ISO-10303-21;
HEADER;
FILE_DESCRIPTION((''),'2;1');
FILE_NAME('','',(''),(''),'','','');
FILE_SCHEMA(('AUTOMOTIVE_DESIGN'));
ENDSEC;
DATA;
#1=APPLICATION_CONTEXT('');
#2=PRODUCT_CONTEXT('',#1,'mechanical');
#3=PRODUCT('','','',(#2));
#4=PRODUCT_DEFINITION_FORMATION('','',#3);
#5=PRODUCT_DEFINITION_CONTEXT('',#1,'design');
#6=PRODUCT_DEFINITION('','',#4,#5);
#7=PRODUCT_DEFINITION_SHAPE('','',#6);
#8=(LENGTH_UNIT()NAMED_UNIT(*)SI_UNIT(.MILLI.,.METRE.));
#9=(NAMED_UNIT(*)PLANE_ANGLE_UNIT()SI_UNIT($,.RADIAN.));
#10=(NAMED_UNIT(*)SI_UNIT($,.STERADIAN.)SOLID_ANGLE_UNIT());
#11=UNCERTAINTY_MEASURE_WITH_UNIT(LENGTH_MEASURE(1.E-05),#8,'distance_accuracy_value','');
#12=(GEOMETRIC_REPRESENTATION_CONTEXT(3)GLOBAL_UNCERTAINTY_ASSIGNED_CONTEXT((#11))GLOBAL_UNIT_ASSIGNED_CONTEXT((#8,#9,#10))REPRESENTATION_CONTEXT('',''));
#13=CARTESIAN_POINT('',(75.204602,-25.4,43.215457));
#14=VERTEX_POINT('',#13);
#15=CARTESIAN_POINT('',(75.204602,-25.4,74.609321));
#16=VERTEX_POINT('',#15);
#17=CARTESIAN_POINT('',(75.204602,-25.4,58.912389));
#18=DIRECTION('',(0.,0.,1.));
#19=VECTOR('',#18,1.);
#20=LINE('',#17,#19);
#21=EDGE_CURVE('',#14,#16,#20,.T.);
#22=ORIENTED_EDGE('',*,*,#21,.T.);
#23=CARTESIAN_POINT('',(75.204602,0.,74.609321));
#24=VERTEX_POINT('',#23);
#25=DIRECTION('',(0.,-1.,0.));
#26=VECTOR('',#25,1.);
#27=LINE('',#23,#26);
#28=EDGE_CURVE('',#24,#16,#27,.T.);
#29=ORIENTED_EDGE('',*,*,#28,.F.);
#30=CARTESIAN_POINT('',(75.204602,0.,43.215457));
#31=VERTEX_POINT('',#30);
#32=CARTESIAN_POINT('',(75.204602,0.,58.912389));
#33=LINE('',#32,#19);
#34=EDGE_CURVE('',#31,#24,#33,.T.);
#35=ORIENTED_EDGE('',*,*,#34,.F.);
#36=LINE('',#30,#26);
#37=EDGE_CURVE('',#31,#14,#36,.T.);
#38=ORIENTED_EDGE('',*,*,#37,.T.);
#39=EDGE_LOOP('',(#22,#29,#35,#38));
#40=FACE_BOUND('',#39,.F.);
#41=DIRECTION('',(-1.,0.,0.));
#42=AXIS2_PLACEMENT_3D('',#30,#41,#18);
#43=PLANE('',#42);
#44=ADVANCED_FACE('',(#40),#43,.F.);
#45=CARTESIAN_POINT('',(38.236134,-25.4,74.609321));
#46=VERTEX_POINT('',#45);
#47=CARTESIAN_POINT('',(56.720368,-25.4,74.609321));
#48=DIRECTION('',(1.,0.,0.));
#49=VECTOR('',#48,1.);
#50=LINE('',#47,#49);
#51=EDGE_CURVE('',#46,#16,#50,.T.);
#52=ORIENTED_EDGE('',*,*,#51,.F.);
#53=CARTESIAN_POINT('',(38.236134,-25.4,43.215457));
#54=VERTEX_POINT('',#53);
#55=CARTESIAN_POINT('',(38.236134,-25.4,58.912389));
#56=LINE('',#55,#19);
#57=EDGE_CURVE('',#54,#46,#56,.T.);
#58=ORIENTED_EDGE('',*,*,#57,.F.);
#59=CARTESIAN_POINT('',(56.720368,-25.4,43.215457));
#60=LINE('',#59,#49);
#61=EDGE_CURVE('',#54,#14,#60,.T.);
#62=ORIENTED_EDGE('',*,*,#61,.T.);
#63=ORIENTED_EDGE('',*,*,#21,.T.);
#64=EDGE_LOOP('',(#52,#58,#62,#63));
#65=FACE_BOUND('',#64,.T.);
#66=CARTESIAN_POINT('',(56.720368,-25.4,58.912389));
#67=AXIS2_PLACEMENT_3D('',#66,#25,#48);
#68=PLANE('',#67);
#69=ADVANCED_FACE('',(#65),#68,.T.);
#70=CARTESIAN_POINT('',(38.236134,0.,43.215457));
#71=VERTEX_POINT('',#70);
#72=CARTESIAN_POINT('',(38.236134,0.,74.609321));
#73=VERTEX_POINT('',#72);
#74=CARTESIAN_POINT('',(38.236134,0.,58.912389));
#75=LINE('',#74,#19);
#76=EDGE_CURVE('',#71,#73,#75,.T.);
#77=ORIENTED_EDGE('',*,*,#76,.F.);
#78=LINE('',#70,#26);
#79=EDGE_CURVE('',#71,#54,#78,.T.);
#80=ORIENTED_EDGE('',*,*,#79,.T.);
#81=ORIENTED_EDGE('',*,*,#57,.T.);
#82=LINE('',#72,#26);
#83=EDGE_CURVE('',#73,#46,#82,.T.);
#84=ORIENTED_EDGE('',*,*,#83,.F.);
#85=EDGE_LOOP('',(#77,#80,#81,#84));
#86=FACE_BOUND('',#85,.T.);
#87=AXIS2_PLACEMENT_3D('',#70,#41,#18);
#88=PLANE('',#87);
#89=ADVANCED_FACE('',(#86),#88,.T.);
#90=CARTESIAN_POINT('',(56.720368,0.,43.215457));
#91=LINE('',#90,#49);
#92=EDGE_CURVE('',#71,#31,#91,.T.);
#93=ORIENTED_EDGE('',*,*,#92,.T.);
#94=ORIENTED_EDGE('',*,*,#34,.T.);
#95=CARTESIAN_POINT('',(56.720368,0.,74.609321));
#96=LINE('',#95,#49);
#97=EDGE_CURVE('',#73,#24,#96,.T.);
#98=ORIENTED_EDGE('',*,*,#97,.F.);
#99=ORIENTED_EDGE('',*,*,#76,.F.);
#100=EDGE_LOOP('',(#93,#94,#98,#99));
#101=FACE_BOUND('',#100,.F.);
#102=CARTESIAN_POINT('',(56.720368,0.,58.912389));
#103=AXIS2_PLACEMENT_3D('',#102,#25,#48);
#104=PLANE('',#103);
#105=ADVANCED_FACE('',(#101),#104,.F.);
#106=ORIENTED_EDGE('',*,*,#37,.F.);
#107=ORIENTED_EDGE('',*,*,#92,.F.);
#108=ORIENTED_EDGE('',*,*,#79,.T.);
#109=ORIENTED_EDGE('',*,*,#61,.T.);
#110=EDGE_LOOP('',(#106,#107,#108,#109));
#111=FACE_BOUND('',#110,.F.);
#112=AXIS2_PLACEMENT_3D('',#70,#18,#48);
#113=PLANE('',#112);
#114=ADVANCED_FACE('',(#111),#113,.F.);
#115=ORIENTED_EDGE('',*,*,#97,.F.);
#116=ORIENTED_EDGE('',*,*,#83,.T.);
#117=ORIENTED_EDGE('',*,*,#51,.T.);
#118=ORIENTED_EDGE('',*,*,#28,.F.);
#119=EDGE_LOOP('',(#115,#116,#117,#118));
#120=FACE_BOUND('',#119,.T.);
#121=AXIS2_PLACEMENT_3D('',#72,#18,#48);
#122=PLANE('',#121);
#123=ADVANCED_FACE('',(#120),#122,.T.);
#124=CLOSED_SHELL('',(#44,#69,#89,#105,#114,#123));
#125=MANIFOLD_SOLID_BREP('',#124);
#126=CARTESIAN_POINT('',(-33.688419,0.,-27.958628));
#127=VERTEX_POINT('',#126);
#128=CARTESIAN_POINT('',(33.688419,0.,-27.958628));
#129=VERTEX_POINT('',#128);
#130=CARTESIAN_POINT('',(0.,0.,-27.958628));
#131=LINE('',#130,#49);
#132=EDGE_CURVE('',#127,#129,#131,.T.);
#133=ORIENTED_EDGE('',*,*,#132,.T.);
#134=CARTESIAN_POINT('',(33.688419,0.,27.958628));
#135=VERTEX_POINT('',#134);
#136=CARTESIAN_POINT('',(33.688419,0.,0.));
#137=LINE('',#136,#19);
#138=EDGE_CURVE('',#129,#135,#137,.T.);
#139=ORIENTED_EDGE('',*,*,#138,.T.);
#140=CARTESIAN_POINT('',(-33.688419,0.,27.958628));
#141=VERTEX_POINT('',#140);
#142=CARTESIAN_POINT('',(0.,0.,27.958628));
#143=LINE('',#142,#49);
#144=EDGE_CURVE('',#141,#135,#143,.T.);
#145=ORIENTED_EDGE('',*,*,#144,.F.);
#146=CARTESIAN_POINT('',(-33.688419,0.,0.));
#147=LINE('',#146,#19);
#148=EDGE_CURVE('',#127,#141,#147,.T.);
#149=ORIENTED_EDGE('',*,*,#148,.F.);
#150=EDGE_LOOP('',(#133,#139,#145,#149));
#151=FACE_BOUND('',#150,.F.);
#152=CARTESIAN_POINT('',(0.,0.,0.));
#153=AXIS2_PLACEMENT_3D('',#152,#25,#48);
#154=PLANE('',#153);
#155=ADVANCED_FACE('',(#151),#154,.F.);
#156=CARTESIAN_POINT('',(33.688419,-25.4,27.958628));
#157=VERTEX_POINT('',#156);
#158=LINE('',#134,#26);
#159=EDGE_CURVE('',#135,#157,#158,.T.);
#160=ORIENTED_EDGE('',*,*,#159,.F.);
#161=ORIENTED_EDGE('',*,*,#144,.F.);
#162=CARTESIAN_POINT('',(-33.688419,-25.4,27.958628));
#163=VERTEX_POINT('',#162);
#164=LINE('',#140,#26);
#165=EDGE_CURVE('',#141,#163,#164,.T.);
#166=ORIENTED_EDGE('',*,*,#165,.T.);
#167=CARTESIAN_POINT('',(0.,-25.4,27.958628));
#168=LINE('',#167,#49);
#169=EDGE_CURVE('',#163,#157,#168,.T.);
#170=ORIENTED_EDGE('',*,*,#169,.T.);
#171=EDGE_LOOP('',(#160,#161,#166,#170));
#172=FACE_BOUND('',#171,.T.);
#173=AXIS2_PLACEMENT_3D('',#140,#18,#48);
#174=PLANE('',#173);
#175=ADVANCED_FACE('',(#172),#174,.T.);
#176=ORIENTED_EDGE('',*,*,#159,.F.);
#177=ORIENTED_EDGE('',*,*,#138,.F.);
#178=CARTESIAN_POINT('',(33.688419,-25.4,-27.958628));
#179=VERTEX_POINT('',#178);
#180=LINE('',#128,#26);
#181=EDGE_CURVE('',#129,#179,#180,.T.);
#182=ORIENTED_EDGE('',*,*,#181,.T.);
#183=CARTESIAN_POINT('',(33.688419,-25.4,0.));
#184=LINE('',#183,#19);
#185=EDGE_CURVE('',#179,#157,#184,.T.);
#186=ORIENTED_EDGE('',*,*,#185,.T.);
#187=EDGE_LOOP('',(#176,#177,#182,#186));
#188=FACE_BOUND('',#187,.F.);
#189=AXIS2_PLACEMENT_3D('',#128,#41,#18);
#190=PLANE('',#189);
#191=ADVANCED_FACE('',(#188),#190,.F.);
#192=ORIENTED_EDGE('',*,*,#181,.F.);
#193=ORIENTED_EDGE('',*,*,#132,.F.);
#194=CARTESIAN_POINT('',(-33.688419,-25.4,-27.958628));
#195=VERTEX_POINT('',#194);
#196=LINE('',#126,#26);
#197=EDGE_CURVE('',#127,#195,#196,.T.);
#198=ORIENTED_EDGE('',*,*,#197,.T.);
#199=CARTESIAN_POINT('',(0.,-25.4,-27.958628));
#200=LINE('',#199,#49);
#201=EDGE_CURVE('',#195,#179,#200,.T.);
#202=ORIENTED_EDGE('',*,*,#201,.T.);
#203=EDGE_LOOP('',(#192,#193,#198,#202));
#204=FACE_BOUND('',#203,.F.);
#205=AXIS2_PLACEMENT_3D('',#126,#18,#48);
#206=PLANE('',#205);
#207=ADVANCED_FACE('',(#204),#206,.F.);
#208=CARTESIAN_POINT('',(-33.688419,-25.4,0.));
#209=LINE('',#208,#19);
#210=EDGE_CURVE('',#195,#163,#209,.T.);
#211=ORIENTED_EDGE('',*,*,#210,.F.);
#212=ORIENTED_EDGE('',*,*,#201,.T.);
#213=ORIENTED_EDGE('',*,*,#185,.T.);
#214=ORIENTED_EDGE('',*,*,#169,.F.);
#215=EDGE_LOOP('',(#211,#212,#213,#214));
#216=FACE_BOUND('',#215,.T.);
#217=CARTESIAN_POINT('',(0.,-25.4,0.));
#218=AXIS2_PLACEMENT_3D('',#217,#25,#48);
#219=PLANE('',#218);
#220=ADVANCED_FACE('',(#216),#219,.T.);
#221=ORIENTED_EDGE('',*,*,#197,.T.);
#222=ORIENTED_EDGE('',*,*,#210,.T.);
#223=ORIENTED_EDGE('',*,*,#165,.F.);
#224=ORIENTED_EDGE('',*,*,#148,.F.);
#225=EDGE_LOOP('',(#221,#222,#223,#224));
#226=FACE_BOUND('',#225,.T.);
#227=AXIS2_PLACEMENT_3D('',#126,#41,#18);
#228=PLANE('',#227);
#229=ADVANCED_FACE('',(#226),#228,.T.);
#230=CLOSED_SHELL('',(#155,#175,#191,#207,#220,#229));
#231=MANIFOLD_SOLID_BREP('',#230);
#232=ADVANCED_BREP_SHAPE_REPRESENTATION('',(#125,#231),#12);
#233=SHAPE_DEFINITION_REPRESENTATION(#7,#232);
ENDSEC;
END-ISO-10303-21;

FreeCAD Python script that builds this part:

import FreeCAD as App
import Part
import Sketcher
Q = App.Units.Quantity

doc = App.newDocument("Part")
body = doc.addObject("PartDesign::Body", "Body")
body.AllowCompound = True

sketch1 = doc.addObject("Sketcher::SketchObject", "Sketch")
body.addObject(sketch1)
sketch1.AttachmentSupport = (doc.XZ_Plane, [""])
sketch1.MapMode = "FlatFace"
sketch1.addGeometry(Part.LineSegment(App.Vector(-33.688419, 27.958628, 0), App.Vector(-33.688419, -27.958628, 0)), False)
sketch1.addGeometry(Part.LineSegment(App.Vector(-33.688419, -27.958628, 0), App.Vector(33.688419, -27.958628, 0)), False)
sketch1.addGeometry(Part.LineSegment(App.Vector(33.688419, -27.958628, 0), App.Vector(33.688419, 27.958628, 0)), False)
sketch1.addGeometry(Part.LineSegment(App.Vector(33.688419, 27.958628, 0), App.Vector(-33.688419, 27.958628, 0)), False)
sketch1.addGeometry(Part.LineSegment(App.Vector(38.236134, 74.609321, 0), App.Vector(38.236134, 43.215457, 0)), False)
sketch1.addGeometry(Part.LineSegment(App.Vector(38.236134, 43.215457, 0), App.Vector(75.204602, 43.215457, 0)), False)
sketch1.addGeometry(Part.LineSegment(App.Vector(75.204602, 43.215457, 0), App.Vector(75.204602, 74.609321, 0)), False)
sketch1.addGeometry(Part.LineSegment(App.Vector(75.204602, 74.609321, 0), App.Vector(38.236134, 74.609321, 0)), False)
sketch1.addConstraint(Sketcher.Constraint("Coincident", 0, 2, 1, 1))
sketch1.addConstraint(Sketcher.Constraint("Coincident", 1, 2, 2, 1))
sketch1.addConstraint(Sketcher.Constraint("Coincident", 2, 2, 3, 1))
sketch1.addConstraint(Sketcher.Constraint("Coincident", 3, 2, 0, 1))
sketch1.addConstraint(Sketcher.Constraint("Coincident", 4, 2, 5, 1))
sketch1.addConstraint(Sketcher.Constraint("Coincident", 5, 2, 6, 1))
sketch1.addConstraint(Sketcher.Constraint("Coincident", 6, 2, 7, 1))
sketch1.addConstraint(Sketcher.Constraint("Coincident", 7, 2, 4, 1))
sketch1.addConstraint(Sketcher.Constraint("Vertical", 0))
sketch1.addConstraint(Sketcher.Constraint("Horizontal", 1))
sketch1.addConstraint(Sketcher.Constraint("Vertical", 2))
sketch1.addConstraint(Sketcher.Constraint("Horizontal", 3))
sketch1.addConstraint(Sketcher.Constraint("Vertical", 4))
sketch1.addConstraint(Sketcher.Constraint("Horizontal", 5))
sketch1.addConstraint(Sketcher.Constraint("Vertical", 6))
sketch1.addConstraint(Sketcher.Constraint("Horizontal", 7))
sketch1.addConstraint(Sketcher.Constraint("Symmetric", 0, 2, 2, 2, -1, 1))
sketch1.addConstraint(Sketcher.Constraint("DistanceX", 1, 1, 1, 2, 67.376838))
sketch1.addConstraint(Sketcher.Constraint("DistanceX", 5, 1, 5, 2, 36.968469))
sketch1.addConstraint(Sketcher.Constraint("DistanceY", 0, 2, 0, 1, 55.917256))
sketch1.addConstraint(Sketcher.Constraint("DistanceY", 4, 2, 4, 1, 31.393864))
sketch1.addConstraint(Sketcher.Constraint("DistanceY", -1, 1, 6, 2, 74.609321))
sketch1.addConstraint(Sketcher.Constraint("DistanceX", 3, 2, 5, 2, 108.893022))
pad1 = doc.addObject("PartDesign::Pad", "Pad")
body.addObject(pad1)
pad1.Profile = sketch1
pad1.Length = Q("1 in")

doc.recompute()
